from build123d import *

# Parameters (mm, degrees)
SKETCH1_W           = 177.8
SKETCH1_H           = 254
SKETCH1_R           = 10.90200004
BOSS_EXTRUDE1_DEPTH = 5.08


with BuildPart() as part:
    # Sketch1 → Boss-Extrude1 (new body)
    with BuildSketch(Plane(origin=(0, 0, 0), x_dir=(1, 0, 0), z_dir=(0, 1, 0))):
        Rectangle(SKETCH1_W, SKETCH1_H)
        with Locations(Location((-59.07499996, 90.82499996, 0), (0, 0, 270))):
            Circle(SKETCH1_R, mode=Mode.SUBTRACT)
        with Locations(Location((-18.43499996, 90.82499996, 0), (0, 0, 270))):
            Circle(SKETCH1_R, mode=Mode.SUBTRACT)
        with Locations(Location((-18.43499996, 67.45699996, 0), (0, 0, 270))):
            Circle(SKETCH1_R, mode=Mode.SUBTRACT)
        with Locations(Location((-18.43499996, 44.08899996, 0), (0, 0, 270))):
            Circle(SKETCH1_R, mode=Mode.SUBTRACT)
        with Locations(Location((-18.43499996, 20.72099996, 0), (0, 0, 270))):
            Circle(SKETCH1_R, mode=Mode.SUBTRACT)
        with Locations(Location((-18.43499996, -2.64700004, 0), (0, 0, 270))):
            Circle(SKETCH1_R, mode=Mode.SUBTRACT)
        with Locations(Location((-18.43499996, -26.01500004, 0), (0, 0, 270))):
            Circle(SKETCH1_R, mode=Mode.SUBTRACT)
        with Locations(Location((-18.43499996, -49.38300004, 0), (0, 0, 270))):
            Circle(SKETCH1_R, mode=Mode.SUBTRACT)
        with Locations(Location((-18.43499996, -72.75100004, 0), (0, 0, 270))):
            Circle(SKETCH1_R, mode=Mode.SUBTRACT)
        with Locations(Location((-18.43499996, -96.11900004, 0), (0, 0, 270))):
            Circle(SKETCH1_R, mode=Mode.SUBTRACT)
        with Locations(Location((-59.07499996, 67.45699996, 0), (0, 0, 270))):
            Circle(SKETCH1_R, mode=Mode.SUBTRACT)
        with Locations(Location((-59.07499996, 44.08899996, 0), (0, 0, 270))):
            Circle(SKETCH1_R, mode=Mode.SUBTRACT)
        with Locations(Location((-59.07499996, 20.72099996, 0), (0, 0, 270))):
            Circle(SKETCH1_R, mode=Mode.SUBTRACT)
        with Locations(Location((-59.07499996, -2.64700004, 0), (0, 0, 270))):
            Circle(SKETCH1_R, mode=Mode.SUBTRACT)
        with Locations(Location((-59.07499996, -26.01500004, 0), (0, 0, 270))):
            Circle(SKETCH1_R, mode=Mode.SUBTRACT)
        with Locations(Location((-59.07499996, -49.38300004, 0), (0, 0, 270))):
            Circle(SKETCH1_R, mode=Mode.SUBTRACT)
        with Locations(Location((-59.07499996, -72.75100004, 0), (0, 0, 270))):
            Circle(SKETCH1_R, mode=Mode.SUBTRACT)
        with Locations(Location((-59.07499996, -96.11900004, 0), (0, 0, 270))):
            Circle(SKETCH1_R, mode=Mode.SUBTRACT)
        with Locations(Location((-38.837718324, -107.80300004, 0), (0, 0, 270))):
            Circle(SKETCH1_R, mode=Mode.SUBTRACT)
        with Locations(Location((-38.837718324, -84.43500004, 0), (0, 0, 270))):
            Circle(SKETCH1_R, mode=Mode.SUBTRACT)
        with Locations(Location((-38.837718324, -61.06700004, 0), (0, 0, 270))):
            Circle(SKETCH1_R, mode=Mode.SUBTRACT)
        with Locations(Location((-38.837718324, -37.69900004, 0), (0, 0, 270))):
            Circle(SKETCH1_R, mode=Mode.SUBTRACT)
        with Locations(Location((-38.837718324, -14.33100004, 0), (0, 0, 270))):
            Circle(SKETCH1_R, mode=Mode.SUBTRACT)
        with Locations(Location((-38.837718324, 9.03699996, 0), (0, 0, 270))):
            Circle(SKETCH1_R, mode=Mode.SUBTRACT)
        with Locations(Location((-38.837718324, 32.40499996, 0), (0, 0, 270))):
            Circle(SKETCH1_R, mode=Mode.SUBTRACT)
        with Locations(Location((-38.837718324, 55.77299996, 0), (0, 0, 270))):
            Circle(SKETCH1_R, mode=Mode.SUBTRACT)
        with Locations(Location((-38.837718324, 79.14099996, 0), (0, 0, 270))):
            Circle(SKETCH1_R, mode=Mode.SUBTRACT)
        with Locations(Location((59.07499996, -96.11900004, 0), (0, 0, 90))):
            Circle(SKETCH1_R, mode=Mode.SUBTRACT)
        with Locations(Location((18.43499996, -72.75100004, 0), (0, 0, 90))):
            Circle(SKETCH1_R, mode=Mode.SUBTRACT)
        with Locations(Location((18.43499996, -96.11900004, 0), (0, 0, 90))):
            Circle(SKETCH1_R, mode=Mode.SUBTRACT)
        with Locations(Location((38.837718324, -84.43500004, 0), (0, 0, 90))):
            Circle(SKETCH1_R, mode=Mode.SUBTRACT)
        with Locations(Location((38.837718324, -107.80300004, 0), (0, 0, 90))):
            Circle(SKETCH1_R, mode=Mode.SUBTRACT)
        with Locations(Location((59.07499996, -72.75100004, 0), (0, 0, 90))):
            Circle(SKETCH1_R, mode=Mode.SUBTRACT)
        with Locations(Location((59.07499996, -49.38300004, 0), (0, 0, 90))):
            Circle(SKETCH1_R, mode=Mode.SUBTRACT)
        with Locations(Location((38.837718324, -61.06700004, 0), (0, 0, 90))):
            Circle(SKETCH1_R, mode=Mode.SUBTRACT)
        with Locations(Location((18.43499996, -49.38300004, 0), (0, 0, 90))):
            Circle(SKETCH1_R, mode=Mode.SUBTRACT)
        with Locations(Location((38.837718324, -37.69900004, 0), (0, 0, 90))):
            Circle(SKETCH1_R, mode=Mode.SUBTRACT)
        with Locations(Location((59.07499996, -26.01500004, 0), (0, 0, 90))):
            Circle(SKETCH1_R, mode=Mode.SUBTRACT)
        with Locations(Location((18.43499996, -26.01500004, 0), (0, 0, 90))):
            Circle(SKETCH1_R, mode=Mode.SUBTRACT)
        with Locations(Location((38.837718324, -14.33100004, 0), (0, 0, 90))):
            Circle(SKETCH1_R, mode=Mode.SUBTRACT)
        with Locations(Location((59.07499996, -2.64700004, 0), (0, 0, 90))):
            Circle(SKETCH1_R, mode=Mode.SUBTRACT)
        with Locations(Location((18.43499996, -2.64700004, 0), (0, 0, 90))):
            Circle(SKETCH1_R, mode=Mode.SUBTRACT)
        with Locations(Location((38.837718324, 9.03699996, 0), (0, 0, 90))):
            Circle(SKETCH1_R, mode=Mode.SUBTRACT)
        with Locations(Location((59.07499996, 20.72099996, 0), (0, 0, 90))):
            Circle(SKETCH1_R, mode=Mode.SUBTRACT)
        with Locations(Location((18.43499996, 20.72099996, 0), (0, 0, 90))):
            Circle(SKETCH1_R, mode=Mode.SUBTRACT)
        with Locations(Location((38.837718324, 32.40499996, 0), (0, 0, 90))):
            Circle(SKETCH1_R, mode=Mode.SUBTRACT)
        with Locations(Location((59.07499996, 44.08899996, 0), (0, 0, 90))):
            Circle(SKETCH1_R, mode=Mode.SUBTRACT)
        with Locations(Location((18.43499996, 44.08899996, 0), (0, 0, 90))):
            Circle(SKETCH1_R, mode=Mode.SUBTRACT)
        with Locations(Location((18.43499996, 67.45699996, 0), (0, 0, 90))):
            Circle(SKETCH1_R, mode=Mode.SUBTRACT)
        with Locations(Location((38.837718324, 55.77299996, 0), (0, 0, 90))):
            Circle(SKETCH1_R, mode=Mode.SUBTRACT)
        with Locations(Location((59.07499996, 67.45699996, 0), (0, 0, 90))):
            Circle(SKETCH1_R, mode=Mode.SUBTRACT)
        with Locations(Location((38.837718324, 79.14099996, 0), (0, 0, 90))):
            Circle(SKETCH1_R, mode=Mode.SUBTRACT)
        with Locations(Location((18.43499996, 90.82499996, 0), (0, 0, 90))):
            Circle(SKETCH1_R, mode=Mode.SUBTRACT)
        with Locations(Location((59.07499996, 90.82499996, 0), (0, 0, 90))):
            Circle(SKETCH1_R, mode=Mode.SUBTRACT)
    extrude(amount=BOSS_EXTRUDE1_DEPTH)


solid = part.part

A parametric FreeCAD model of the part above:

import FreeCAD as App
import Part
import Sketcher
from FreeCAD import Vector
Q = App.Units.Quantity


def add_polygon(sketch, points):
    """Adds a closed chain of lines whose ends are joined by coincident constraints."""
    first, n = sketch.GeometryCount, len(points)
    for a, b in zip(points, points[1:] + points[:1]):
        sketch.addGeometry(Part.LineSegment(App.Vector(*a, 0), App.Vector(*b, 0)), False)
    for i in range(n):
        sketch.addConstraint(Sketcher.Constraint("Coincident", first + i, 2, first + (i + 1) % n, 1))

doc = App.newDocument("Part")
body = doc.addObject("PartDesign::Body", "Body")

# Sketch on XZ plane
sketch1 = doc.addObject("Sketcher::SketchObject", "Sketch")
body.addObject(sketch1)
sketch1.AttachmentSupport = (doc.XZ_Plane, [""])
sketch1.MapMode = "FlatFace"
add_polygon(sketch1, [(-89, -127), (-89, 127), (89, 127), (89, -127)])  # lines 0-3
sketch1.addGeometry(Part.Circle(Vector(-59, 96, 0), Vector(0, 0, 1), 11), False)  # 4
sketch1.addGeometry(Part.Circle(Vector(-39, 108, 0), Vector(0, 0, 1), 11), False)  # 5
sketch1.addGeometry(Part.Circle(Vector(-59, 73, 0), Vector(0, 0, 1), 11), False)  # 6
sketch1.addGeometry(Part.Circle(Vector(-39, 84, 0), Vector(0, 0, 1), 11), False)  # 7
sketch1.addGeometry(Part.Circle(Vector(-18, 96, 0), Vector(0, 0, 1), 11), False)  # 8
sketch1.addGeometry(Part.Circle(Vector(-18, 73, 0), Vector(0, 0, 1), 11), False)  # 9
sketch1.addGeometry(Part.Circle(Vector(-59, 49, 0), Vector(0, 0, 1), 11), False)  # 10
sketch1.addGeometry(Part.Circle(Vector(-39, 61, 0), Vector(0, 0, 1), 11), False)  # 11
sketch1.addGeometry(Part.Circle(Vector(-39, 38, 0), Vector(0, 0, 1), 11), False)  # 12
sketch1.addGeometry(Part.Circle(Vector(-59, 26, 0), Vector(0, 0, 1), 11), False)  # 13
sketch1.addGeometry(Part.Circle(Vector(-39, 14, 0), Vector(0, 0, 1), 11), False)  # 14
sketch1.addGeometry(Part.Circle(Vector(-18, 49, 0), Vector(0, 0, 1), 11), False)  # 15
sketch1.addGeometry(Part.Circle(Vector(-18, 26, 0), Vector(0, 0, 1), 11), False)  # 16
sketch1.addGeometry(Part.Circle(Vector(18, 96, 0), Vector(0, 0, 1), 11), False)  # 17
sketch1.addGeometry(Part.Circle(Vector(18, 73, 0), Vector(0, 0, 1), 11), False)  # 18
sketch1.addGeometry(Part.Circle(Vector(39, 108, 0), Vector(0, 0, 1), 11), False)  # 19
sketch1.addGeometry(Part.Circle(Vector(59, 96, 0), Vector(0, 0, 1), 11), False)  # 20
sketch1.addGeometry(Part.Circle(Vector(39, 84, 0), Vector(0, 0, 1), 11), False)  # 21
sketch1.addGeometry(Part.Circle(Vector(59, 73, 0), Vector(0, 0, 1), 11), False)  # 22
sketch1.addGeometry(Part.Circle(Vector(18, 49, 0), Vector(0, 0, 1), 11), False)  # 23
sketch1.addGeometry(Part.Circle(Vector(18, 26, 0), Vector(0, 0, 1), 11), False)  # 24
sketch1.addGeometry(Part.Circle(Vector(39, 61, 0), Vector(0, 0, 1), 11), False)  # 25
sketch1.addGeometry(Part.Circle(Vector(39, 38, 0), Vector(0, 0, 1), 11), False)  # 26
sketch1.addGeometry(Part.Circle(Vector(59, 49, 0), Vector(0, 0, 1), 11), False)  # 27
sketch1.addGeometry(Part.Circle(Vector(39, 14, 0), Vector(0, 0, 1), 11), False)  # 28
sketch1.addGeometry(Part.Circle(Vector(59, 26, 0), Vector(0, 0, 1), 11), False)  # 29
sketch1.addGeometry(Part.Circle(Vector(-59, 3, 0), Vector(0, 0, 1), 11), False)  # 30
sketch1.addGeometry(Part.Circle(Vector(-39, -9, 0), Vector(0, 0, 1), 11), False)  # 31
sketch1.addGeometry(Part.Circle(Vector(-59, -21, 0), Vector(0, 0, 1), 11), False)  # 32
sketch1.addGeometry(Part.Circle(Vector(-59, -44, 0), Vector(0, 0, 1), 11), False)  # 33
sketch1.addGeometry(Part.Circle(Vector(-39, -32, 0), Vector(0, 0, 1), 11), False)  # 34
sketch1.addGeometry(Part.Circle(Vector(-18, 3, 0), Vector(0, 0, 1), 11), False)  # 35
sketch1.addGeometry(Part.Circle(Vector(-18, -21, 0), Vector(0, 0, 1), 11), False)  # 36
sketch1.addGeometry(Part.Circle(Vector(-18, -44, 0), Vector(0, 0, 1), 11), False)  # 37
sketch1.addGeometry(Part.Circle(Vector(-59, -67, 0), Vector(0, 0, 1), 11), False)  # 38
sketch1.addGeometry(Part.Circle(Vector(-39, -56, 0), Vector(0, 0, 1), 11), False)  # 39
sketch1.addGeometry(Part.Circle(Vector(-59, -91, 0), Vector(0, 0, 1), 11), False)  # 40
sketch1.addGeometry(Part.Circle(Vector(-39, -79, 0), Vector(0, 0, 1), 11), False)  # 41
sketch1.addGeometry(Part.Circle(Vector(-18, -67, 0), Vector(0, 0, 1), 11), False)  # 42
sketch1.addGeometry(Part.Circle(Vector(-18, -91, 0), Vector(0, 0, 1), 11), False)  # 43
sketch1.addGeometry(Part.Circle(Vector(18, 3, 0), Vector(0, 0, 1), 11), False)  # 44
sketch1.addGeometry(Part.Circle(Vector(18, -21, 0), Vector(0, 0, 1), 11), False)  # 45
sketch1.addGeometry(Part.Circle(Vector(18, -44, 0), Vector(0, 0, 1), 11), False)  # 46
sketch1.addGeometry(Part.Circle(Vector(39, -9, 0), Vector(0, 0, 1), 11), False)  # 47
sketch1.addGeometry(Part.Circle(Vector(59, 3, 0), Vector(0, 0, 1), 11), False)  # 48
sketch1.addGeometry(Part.Circle(Vector(39, -32, 0), Vector(0, 0, 1), 11), False)  # 49
sketch1.addGeometry(Part.Circle(Vector(59, -21, 0), Vector(0, 0, 1), 11), False)  # 50
sketch1.addGeometry(Part.Circle(Vector(59, -44, 0), Vector(0, 0, 1), 11), False)  # 51
sketch1.addGeometry(Part.Circle(Vector(18, -67, 0), Vector(0, 0, 1), 11), False)  # 52
sketch1.addGeometry(Part.Circle(Vector(18, -91, 0), Vector(0, 0, 1), 11), False)  # 53
sketch1.addGeometry(Part.Circle(Vector(39, -56, 0), Vector(0, 0, 1), 11), False)  # 54
sketch1.addGeometry(Part.Circle(Vector(59, -67, 0), Vector(0, 0, 1), 11), False)  # 55
sketch1.addGeometry(Part.Circle(Vector(39, -79, 0), Vector(0, 0, 1), 11), False)  # 56
sketch1.addGeometry(Part.Circle(Vector(59, -91, 0), Vector(0, 0, 1), 11), False)  # 57
sketch1.addConstraint(Sketcher.Constraint("Vertical", 0))
sketch1.addConstraint(Sketcher.Constraint("Horizontal", 1))
sketch1.addConstraint(Sketcher.Constraint("Vertical", 2))
sketch1.addConstraint(Sketcher.Constraint("Horizontal", 3))
sketch1.addConstraint(Sketcher.Constraint("Equal", 4, 5))
sketch1.addConstraint(Sketcher.Constraint("Equal", 5, 6))
sketch1.addConstraint(Sketcher.Constraint("Equal", 6, 7))
sketch1.addConstraint(Sketcher.Constraint("Equal", 7, 8))
sketch1.addConstraint(Sketcher.Constraint("Equal", 8, 9))
sketch1.addConstraint(Sketcher.Constraint("Equal", 9, 10))
sketch1.addConstraint(Sketcher.Constraint("Equal", 10, 11))
sketch1.addConstraint(Sketcher.Constraint("Equal", 11, 12))
sketch1.addConstraint(Sketcher.Constraint("Equal", 12, 13))
sketch1.addConstraint(Sketcher.Constraint("Equal", 13, 14))
sketch1.addConstraint(Sketcher.Constraint("Equal", 14, 15))
sketch1.addConstraint(Sketcher.Constraint("Equal", 15, 16))
sketch1.addConstraint(Sketcher.Constraint("Equal", 16, 17))
sketch1.addConstraint(Sketcher.Constraint("Equal", 17, 18))
sketch1.addConstraint(Sketcher.Constraint("Equal", 18, 19))
sketch1.addConstraint(Sketcher.Constraint("Equal", 19, 20))
sketch1.addConstraint(Sketcher.Constraint("Equal", 20, 21))
sketch1.addConstraint(Sketcher.Constraint("Equal", 21, 22))
sketch1.addConstraint(Sketcher.Constraint("Equal", 22, 23))
sketch1.addConstraint(Sketcher.Constraint("Equal", 23, 24))
sketch1.addConstraint(Sketcher.Constraint("Equal", 24, 25))
sketch1.addConstraint(Sketcher.Constraint("Equal", 25, 26))
sketch1.addConstraint(Sketcher.Constraint("Equal", 26, 27))
sketch1.addConstraint(Sketcher.Constraint("Equal", 27, 28))
sketch1.addConstraint(Sketcher.Constraint("Equal", 28, 29))
sketch1.addConstraint(Sketcher.Constraint("Equal", 29, 30))
sketch1.addConstraint(Sketcher.Constraint("Equal", 30, 31))
sketch1.addConstraint(Sketcher.Constraint("Equal", 31, 32))
sketch1.addConstraint(Sketcher.Constraint("Equal", 32, 33))
sketch1.addConstraint(Sketcher.Constraint("Equal", 33, 34))
sketch1.addConstraint(Sketcher.Constraint("Equal", 34, 35))
sketch1.addConstraint(Sketcher.Constraint("Equal", 35, 36))
sketch1.addConstraint(Sketcher.Constraint("Equal", 36, 37))
sketch1.addConstraint(Sketcher.Constraint("Equal", 37, 38))
sketch1.addConstraint(Sketcher.Constraint("Equal", 38, 39))
sketch1.addConstraint(Sketcher.Constraint("Equal", 39, 40))
sketch1.addConstraint(Sketcher.Constraint("Equal", 40, 41))
sketch1.addConstraint(Sketcher.Constraint("Equal", 41, 42))
sketch1.addConstraint(Sketcher.Constraint("Equal", 42, 43))
sketch1.addConstraint(Sketcher.Constraint("Equal", 43, 44))
sketch1.addConstraint(Sketcher.Constraint("Equal", 44, 45))
sketch1.addConstraint(Sketcher.Constraint("Equal", 45, 46))
sketch1.addConstraint(Sketcher.Constraint("Equal", 46, 47))
sketch1.addConstraint(Sketcher.Constraint("Equal", 47, 48))
sketch1.addConstraint(Sketcher.Constraint("Equal", 48, 49))
sketch1.addConstraint(Sketcher.Constraint("Equal", 49, 50))
sketch1.addConstraint(Sketcher.Constraint("Equal", 50, 51))
sketch1.addConstraint(Sketcher.Constraint("Equal", 51, 52))
sketch1.addConstraint(Sketcher.Constraint("Equal", 52, 53))
sketch1.addConstraint(Sketcher.Constraint("Equal", 53, 54))
sketch1.addConstraint(Sketcher.Constraint("Equal", 54, 55))
sketch1.addConstraint(Sketcher.Constraint("Equal", 55, 56))
sketch1.addConstraint(Sketcher.Constraint("Equal", 56, 57))
sketch1.addConstraint(Sketcher.Constraint("Symmetric", 0, 2, 2, 2, -1, 1))
sketch1.addConstraint(Sketcher.Constraint("Symmetric", 8, 3, 17, 3, -2))
sketch1.addConstraint(Sketcher.Constraint("Symmetric", 9, 3, 18, 3, -2))
sketch1.addConstraint(Sketcher.Constraint("Symmetric", 5, 3, 19, 3, -2))
sketch1.addConstraint(Sketcher.Constraint("Symmetric", 4, 3, 20, 3, -2))
sketch1.addConstraint(Sketcher.Constraint("Symmetric", 7, 3, 21, 3, -2))
sketch1.addConstraint(Sketcher.Constraint("Symmetric", 6, 3, 22, 3, -2))
sketch1.addConstraint(Sketcher.Constraint("Symmetric", 15, 3, 23, 3, -2))
sketch1.addConstraint(Sketcher.Constraint("Symmetric", 16, 3, 24, 3, -2))
sketch1.addConstraint(Sketcher.Constraint("Symmetric", 11, 3, 25, 3, -2))
sketch1.addConstraint(Sketcher.Constraint("Symmetric", 12, 3, 26, 3, -2))
sketch1.addConstraint(Sketcher.Constraint("Symmetric", 10, 3, 27, 3, -2))
sketch1.addConstraint(Sketcher.Constraint("Symmetric", 14, 3, 28, 3, -2))
sketch1.addConstraint(Sketcher.Constraint("Symmetric", 13, 3, 29, 3, -2))
sketch1.addConstraint(Sketcher.Constraint("Symmetric", 35, 3, 44, 3, -2))
sketch1.addConstraint(Sketcher.Constraint("Symmetric", 36, 3, 45, 3, -2))
sketch1.addConstraint(Sketcher.Constraint("Symmetric", 37, 3, 46, 3, -2))
sketch1.addConstraint(Sketcher.Constraint("Symmetric", 31, 3, 47, 3, -2))
sketch1.addConstraint(Sketcher.Constraint("Symmetric", 30, 3, 48, 3, -2))
sketch1.addConstraint(Sketcher.Constraint("Symmetric", 34, 3, 49, 3, -2))
sketch1.addConstraint(Sketcher.Constraint("Symmetric", 32, 3, 50, 3, -2))
sketch1.addConstraint(Sketcher.Constraint("Symmetric", 33, 3, 51, 3, -2))
sketch1.addConstraint(Sketcher.Constraint("Symmetric", 42, 3, 52, 3, -2))
sketch1.addConstraint(Sketcher.Constraint("Symmetric", 43, 3, 53, 3, -2))
sketch1.addConstraint(Sketcher.Constraint("Symmetric", 39, 3, 54, 3, -2))
sketch1.addConstraint(Sketcher.Constraint("Symmetric", 38, 3, 55, 3, -2))
sketch1.addConstraint(Sketcher.Constraint("Symmetric", 41, 3, 56, 3, -2))
sketch1.addConstraint(Sketcher.Constraint("Symmetric", 40, 3, 57, 3, -2))
sketch1.addConstraint(Sketcher.Constraint("Horizontal", 4, 3, 8, 3))
sketch1.addConstraint(Sketcher.Constraint("Horizontal", 6, 3, 9, 3))
sketch1.addConstraint(Sketcher.Constraint("Horizontal", 10, 3, 15, 3))
sketch1.addConstraint(Sketcher.Constraint("Horizontal", 13, 3, 16, 3))
sketch1.addConstraint(Sketcher.Constraint("Horizontal", 30, 3, 35, 3))
sketch1.addConstraint(Sketcher.Constraint("Horizontal", 32, 3, 36, 3))
sketch1.addConstraint(Sketcher.Constraint("Horizontal", 33, 3, 37, 3))
sketch1.addConstraint(Sketcher.Constraint("Horizontal", 38, 3, 42, 3))
sketch1.addConstraint(Sketcher.Constraint("Horizontal", 40, 3, 43, 3))
sketch1.addConstraint(Sketcher.Constraint("Vertical", 4, 3, 6, 3))
sketch1.addConstraint(Sketcher.Constraint("Vertical", 5, 3, 7, 3))
sketch1.addConstraint(Sketcher.Constraint("Vertical", 8, 3, 9, 3))
sketch1.addConstraint(Sketcher.Constraint("Vertical", 6, 3, 10, 3))
sketch1.addConstraint(Sketcher.Constraint("Vertical", 7, 3, 11, 3))
sketch1.addConstraint(Sketcher.Constraint("Vertical", 11, 3, 12, 3))
sketch1.addConstraint(Sketcher.Constraint("Vertical", 10, 3, 13, 3))
sketch1.addConstraint(Sketcher.Constraint("Vertical", 12, 3, 14, 3))
sketch1.addConstraint(Sketcher.Constraint("Vertical", 9, 3, 15, 3))
sketch1.addConstraint(Sketcher.Constraint("Vertical", 15, 3, 16, 3))
sketch1.addConstraint(Sketcher.Constraint("Vertical", 13, 3, 30, 3))
sketch1.addConstraint(Sketcher.Constraint("Vertical", 14, 3, 31, 3))
sketch1.addConstraint(Sketcher.Constraint("Vertical", 30, 3, 32, 3))
sketch1.addConstraint(Sketcher.Constraint("Vertical", 32, 3, 33, 3))
sketch1.addConstraint(Sketcher.Constraint("Vertical", 31, 3, 34, 3))
sketch1.addConstraint(Sketcher.Constraint("Vertical", 16, 3, 35, 3))
sketch1.addConstraint(Sketcher.Constraint("Vertical", 35, 3, 36, 3))
sketch1.addConstraint(Sketcher.Constraint("Vertical", 36, 3, 37, 3))
sketch1.addConstraint(Sketcher.Constraint("Vertical", 33, 3, 38, 3))
sketch1.addConstraint(Sketcher.Constraint("Vertical", 34, 3, 39, 3))
sketch1.addConstraint(Sketcher.Constraint("Vertical", 38, 3, 40, 3))
sketch1.addConstraint(Sketcher.Constraint("Vertical", 39, 3, 41, 3))
sketch1.addConstraint(Sketcher.Constraint("Vertical", 37, 3, 42, 3))
sketch1.addConstraint(Sketcher.Constraint("Vertical", 42, 3, 43, 3))
sketch1.addConstraint(Sketcher.Constraint("DistanceX", 1, 1, 1, 2, Q("7 in")))
sketch1.addConstraint(Sketcher.Constraint("DistanceY", 0, 1, 0, 2, Q("10 in")))
sketch1.addConstraint(Sketcher.Constraint("DistanceX", 4, 3, 8, 3, Q("1.6 in")))
sketch1.addConstraint(Sketcher.Constraint("DistanceY", 10, 3, 5, 3, Q("2.3 in")))
sketch1.addConstraint(Sketcher.Constraint("DistanceY", 13, 3, 7, 3, Q("2.3 in")))
sketch1.addConstraint(Sketcher.Constraint("DistanceY", 14, 3, 6, 3, Q("2.3 in")))
sketch1.addConstraint(Sketcher.Constraint("DistanceY", 32, 3, 12, 3, Q("2.3 in")))
sketch1.addConstraint(Sketcher.Constraint("DistanceY", 33, 3, 14, 3, Q("2.3 in")))
sketch1.addConstraint(Sketcher.Constraint("DistanceY", 38, 3, 31, 3, Q("2.3 in")))
sketch1.addConstraint(Sketcher.Constraint("DistanceY", 40, 3, 34, 3, Q("2.3 in")))
sketch1.addConstraint(Sketcher.Constraint("Diameter", 4, Q("21.804 mm")))
sketch1.addConstraint(Sketcher.Constraint("DistanceY", 4, 3, 5, 3, Q("0.46 in")))
sketch1.addConstraint(Sketcher.Constraint("DistanceY", 6, 3, 4, 3, Q("0.92 in")))
sketch1.addConstraint(Sketcher.Constraint("DistanceY", 7, 3, 5, 3, Q("0.92 in")))
sketch1.addConstraint(Sketcher.Constraint("DistanceY", 11, 3, 7, 3, Q("0.92 in")))
sketch1.addConstraint(Sketcher.Constraint("DistanceY", 12, 3, 11, 3, Q("0.92 in")))
sketch1.addConstraint(Sketcher.Constraint("DistanceY", 30, 3, 13, 3, Q("0.92 in")))
sketch1.addConstraint(Sketcher.Constraint("DistanceY", 31, 3, 14, 3, Q("0.92 in")))
sketch1.addConstraint(Sketcher.Constraint("DistanceY", 34, 3, 31, 3, Q("0.92 in")))
sketch1.addConstraint(Sketcher.Constraint("DistanceY", 39, 3, 34, 3, Q("0.92 in")))
sketch1.addConstraint(Sketcher.Constraint("DistanceY", 41, 3, 39, 3, Q("0.92 in")))
sketch1.addConstraint(Sketcher.Constraint("DistanceX", 4, 3, -1, 1, Q("59.075 mm")))
sketch1.addConstraint(Sketcher.Constraint("DistanceY", -1, 1, 4, 3, Q("96.119 mm")))
sketch1.addConstraint(Sketcher.Constraint("DistanceX", 5, 3, -1, 1, Q("38.837718 mm")))
pad1 = doc.addObject("PartDesign::Pad", "Pad")
body.addObject(pad1)
pad1.Profile = sketch1
pad1.Length = Q("0.2 in")
pad1.Reversed = True

doc.recompute()
